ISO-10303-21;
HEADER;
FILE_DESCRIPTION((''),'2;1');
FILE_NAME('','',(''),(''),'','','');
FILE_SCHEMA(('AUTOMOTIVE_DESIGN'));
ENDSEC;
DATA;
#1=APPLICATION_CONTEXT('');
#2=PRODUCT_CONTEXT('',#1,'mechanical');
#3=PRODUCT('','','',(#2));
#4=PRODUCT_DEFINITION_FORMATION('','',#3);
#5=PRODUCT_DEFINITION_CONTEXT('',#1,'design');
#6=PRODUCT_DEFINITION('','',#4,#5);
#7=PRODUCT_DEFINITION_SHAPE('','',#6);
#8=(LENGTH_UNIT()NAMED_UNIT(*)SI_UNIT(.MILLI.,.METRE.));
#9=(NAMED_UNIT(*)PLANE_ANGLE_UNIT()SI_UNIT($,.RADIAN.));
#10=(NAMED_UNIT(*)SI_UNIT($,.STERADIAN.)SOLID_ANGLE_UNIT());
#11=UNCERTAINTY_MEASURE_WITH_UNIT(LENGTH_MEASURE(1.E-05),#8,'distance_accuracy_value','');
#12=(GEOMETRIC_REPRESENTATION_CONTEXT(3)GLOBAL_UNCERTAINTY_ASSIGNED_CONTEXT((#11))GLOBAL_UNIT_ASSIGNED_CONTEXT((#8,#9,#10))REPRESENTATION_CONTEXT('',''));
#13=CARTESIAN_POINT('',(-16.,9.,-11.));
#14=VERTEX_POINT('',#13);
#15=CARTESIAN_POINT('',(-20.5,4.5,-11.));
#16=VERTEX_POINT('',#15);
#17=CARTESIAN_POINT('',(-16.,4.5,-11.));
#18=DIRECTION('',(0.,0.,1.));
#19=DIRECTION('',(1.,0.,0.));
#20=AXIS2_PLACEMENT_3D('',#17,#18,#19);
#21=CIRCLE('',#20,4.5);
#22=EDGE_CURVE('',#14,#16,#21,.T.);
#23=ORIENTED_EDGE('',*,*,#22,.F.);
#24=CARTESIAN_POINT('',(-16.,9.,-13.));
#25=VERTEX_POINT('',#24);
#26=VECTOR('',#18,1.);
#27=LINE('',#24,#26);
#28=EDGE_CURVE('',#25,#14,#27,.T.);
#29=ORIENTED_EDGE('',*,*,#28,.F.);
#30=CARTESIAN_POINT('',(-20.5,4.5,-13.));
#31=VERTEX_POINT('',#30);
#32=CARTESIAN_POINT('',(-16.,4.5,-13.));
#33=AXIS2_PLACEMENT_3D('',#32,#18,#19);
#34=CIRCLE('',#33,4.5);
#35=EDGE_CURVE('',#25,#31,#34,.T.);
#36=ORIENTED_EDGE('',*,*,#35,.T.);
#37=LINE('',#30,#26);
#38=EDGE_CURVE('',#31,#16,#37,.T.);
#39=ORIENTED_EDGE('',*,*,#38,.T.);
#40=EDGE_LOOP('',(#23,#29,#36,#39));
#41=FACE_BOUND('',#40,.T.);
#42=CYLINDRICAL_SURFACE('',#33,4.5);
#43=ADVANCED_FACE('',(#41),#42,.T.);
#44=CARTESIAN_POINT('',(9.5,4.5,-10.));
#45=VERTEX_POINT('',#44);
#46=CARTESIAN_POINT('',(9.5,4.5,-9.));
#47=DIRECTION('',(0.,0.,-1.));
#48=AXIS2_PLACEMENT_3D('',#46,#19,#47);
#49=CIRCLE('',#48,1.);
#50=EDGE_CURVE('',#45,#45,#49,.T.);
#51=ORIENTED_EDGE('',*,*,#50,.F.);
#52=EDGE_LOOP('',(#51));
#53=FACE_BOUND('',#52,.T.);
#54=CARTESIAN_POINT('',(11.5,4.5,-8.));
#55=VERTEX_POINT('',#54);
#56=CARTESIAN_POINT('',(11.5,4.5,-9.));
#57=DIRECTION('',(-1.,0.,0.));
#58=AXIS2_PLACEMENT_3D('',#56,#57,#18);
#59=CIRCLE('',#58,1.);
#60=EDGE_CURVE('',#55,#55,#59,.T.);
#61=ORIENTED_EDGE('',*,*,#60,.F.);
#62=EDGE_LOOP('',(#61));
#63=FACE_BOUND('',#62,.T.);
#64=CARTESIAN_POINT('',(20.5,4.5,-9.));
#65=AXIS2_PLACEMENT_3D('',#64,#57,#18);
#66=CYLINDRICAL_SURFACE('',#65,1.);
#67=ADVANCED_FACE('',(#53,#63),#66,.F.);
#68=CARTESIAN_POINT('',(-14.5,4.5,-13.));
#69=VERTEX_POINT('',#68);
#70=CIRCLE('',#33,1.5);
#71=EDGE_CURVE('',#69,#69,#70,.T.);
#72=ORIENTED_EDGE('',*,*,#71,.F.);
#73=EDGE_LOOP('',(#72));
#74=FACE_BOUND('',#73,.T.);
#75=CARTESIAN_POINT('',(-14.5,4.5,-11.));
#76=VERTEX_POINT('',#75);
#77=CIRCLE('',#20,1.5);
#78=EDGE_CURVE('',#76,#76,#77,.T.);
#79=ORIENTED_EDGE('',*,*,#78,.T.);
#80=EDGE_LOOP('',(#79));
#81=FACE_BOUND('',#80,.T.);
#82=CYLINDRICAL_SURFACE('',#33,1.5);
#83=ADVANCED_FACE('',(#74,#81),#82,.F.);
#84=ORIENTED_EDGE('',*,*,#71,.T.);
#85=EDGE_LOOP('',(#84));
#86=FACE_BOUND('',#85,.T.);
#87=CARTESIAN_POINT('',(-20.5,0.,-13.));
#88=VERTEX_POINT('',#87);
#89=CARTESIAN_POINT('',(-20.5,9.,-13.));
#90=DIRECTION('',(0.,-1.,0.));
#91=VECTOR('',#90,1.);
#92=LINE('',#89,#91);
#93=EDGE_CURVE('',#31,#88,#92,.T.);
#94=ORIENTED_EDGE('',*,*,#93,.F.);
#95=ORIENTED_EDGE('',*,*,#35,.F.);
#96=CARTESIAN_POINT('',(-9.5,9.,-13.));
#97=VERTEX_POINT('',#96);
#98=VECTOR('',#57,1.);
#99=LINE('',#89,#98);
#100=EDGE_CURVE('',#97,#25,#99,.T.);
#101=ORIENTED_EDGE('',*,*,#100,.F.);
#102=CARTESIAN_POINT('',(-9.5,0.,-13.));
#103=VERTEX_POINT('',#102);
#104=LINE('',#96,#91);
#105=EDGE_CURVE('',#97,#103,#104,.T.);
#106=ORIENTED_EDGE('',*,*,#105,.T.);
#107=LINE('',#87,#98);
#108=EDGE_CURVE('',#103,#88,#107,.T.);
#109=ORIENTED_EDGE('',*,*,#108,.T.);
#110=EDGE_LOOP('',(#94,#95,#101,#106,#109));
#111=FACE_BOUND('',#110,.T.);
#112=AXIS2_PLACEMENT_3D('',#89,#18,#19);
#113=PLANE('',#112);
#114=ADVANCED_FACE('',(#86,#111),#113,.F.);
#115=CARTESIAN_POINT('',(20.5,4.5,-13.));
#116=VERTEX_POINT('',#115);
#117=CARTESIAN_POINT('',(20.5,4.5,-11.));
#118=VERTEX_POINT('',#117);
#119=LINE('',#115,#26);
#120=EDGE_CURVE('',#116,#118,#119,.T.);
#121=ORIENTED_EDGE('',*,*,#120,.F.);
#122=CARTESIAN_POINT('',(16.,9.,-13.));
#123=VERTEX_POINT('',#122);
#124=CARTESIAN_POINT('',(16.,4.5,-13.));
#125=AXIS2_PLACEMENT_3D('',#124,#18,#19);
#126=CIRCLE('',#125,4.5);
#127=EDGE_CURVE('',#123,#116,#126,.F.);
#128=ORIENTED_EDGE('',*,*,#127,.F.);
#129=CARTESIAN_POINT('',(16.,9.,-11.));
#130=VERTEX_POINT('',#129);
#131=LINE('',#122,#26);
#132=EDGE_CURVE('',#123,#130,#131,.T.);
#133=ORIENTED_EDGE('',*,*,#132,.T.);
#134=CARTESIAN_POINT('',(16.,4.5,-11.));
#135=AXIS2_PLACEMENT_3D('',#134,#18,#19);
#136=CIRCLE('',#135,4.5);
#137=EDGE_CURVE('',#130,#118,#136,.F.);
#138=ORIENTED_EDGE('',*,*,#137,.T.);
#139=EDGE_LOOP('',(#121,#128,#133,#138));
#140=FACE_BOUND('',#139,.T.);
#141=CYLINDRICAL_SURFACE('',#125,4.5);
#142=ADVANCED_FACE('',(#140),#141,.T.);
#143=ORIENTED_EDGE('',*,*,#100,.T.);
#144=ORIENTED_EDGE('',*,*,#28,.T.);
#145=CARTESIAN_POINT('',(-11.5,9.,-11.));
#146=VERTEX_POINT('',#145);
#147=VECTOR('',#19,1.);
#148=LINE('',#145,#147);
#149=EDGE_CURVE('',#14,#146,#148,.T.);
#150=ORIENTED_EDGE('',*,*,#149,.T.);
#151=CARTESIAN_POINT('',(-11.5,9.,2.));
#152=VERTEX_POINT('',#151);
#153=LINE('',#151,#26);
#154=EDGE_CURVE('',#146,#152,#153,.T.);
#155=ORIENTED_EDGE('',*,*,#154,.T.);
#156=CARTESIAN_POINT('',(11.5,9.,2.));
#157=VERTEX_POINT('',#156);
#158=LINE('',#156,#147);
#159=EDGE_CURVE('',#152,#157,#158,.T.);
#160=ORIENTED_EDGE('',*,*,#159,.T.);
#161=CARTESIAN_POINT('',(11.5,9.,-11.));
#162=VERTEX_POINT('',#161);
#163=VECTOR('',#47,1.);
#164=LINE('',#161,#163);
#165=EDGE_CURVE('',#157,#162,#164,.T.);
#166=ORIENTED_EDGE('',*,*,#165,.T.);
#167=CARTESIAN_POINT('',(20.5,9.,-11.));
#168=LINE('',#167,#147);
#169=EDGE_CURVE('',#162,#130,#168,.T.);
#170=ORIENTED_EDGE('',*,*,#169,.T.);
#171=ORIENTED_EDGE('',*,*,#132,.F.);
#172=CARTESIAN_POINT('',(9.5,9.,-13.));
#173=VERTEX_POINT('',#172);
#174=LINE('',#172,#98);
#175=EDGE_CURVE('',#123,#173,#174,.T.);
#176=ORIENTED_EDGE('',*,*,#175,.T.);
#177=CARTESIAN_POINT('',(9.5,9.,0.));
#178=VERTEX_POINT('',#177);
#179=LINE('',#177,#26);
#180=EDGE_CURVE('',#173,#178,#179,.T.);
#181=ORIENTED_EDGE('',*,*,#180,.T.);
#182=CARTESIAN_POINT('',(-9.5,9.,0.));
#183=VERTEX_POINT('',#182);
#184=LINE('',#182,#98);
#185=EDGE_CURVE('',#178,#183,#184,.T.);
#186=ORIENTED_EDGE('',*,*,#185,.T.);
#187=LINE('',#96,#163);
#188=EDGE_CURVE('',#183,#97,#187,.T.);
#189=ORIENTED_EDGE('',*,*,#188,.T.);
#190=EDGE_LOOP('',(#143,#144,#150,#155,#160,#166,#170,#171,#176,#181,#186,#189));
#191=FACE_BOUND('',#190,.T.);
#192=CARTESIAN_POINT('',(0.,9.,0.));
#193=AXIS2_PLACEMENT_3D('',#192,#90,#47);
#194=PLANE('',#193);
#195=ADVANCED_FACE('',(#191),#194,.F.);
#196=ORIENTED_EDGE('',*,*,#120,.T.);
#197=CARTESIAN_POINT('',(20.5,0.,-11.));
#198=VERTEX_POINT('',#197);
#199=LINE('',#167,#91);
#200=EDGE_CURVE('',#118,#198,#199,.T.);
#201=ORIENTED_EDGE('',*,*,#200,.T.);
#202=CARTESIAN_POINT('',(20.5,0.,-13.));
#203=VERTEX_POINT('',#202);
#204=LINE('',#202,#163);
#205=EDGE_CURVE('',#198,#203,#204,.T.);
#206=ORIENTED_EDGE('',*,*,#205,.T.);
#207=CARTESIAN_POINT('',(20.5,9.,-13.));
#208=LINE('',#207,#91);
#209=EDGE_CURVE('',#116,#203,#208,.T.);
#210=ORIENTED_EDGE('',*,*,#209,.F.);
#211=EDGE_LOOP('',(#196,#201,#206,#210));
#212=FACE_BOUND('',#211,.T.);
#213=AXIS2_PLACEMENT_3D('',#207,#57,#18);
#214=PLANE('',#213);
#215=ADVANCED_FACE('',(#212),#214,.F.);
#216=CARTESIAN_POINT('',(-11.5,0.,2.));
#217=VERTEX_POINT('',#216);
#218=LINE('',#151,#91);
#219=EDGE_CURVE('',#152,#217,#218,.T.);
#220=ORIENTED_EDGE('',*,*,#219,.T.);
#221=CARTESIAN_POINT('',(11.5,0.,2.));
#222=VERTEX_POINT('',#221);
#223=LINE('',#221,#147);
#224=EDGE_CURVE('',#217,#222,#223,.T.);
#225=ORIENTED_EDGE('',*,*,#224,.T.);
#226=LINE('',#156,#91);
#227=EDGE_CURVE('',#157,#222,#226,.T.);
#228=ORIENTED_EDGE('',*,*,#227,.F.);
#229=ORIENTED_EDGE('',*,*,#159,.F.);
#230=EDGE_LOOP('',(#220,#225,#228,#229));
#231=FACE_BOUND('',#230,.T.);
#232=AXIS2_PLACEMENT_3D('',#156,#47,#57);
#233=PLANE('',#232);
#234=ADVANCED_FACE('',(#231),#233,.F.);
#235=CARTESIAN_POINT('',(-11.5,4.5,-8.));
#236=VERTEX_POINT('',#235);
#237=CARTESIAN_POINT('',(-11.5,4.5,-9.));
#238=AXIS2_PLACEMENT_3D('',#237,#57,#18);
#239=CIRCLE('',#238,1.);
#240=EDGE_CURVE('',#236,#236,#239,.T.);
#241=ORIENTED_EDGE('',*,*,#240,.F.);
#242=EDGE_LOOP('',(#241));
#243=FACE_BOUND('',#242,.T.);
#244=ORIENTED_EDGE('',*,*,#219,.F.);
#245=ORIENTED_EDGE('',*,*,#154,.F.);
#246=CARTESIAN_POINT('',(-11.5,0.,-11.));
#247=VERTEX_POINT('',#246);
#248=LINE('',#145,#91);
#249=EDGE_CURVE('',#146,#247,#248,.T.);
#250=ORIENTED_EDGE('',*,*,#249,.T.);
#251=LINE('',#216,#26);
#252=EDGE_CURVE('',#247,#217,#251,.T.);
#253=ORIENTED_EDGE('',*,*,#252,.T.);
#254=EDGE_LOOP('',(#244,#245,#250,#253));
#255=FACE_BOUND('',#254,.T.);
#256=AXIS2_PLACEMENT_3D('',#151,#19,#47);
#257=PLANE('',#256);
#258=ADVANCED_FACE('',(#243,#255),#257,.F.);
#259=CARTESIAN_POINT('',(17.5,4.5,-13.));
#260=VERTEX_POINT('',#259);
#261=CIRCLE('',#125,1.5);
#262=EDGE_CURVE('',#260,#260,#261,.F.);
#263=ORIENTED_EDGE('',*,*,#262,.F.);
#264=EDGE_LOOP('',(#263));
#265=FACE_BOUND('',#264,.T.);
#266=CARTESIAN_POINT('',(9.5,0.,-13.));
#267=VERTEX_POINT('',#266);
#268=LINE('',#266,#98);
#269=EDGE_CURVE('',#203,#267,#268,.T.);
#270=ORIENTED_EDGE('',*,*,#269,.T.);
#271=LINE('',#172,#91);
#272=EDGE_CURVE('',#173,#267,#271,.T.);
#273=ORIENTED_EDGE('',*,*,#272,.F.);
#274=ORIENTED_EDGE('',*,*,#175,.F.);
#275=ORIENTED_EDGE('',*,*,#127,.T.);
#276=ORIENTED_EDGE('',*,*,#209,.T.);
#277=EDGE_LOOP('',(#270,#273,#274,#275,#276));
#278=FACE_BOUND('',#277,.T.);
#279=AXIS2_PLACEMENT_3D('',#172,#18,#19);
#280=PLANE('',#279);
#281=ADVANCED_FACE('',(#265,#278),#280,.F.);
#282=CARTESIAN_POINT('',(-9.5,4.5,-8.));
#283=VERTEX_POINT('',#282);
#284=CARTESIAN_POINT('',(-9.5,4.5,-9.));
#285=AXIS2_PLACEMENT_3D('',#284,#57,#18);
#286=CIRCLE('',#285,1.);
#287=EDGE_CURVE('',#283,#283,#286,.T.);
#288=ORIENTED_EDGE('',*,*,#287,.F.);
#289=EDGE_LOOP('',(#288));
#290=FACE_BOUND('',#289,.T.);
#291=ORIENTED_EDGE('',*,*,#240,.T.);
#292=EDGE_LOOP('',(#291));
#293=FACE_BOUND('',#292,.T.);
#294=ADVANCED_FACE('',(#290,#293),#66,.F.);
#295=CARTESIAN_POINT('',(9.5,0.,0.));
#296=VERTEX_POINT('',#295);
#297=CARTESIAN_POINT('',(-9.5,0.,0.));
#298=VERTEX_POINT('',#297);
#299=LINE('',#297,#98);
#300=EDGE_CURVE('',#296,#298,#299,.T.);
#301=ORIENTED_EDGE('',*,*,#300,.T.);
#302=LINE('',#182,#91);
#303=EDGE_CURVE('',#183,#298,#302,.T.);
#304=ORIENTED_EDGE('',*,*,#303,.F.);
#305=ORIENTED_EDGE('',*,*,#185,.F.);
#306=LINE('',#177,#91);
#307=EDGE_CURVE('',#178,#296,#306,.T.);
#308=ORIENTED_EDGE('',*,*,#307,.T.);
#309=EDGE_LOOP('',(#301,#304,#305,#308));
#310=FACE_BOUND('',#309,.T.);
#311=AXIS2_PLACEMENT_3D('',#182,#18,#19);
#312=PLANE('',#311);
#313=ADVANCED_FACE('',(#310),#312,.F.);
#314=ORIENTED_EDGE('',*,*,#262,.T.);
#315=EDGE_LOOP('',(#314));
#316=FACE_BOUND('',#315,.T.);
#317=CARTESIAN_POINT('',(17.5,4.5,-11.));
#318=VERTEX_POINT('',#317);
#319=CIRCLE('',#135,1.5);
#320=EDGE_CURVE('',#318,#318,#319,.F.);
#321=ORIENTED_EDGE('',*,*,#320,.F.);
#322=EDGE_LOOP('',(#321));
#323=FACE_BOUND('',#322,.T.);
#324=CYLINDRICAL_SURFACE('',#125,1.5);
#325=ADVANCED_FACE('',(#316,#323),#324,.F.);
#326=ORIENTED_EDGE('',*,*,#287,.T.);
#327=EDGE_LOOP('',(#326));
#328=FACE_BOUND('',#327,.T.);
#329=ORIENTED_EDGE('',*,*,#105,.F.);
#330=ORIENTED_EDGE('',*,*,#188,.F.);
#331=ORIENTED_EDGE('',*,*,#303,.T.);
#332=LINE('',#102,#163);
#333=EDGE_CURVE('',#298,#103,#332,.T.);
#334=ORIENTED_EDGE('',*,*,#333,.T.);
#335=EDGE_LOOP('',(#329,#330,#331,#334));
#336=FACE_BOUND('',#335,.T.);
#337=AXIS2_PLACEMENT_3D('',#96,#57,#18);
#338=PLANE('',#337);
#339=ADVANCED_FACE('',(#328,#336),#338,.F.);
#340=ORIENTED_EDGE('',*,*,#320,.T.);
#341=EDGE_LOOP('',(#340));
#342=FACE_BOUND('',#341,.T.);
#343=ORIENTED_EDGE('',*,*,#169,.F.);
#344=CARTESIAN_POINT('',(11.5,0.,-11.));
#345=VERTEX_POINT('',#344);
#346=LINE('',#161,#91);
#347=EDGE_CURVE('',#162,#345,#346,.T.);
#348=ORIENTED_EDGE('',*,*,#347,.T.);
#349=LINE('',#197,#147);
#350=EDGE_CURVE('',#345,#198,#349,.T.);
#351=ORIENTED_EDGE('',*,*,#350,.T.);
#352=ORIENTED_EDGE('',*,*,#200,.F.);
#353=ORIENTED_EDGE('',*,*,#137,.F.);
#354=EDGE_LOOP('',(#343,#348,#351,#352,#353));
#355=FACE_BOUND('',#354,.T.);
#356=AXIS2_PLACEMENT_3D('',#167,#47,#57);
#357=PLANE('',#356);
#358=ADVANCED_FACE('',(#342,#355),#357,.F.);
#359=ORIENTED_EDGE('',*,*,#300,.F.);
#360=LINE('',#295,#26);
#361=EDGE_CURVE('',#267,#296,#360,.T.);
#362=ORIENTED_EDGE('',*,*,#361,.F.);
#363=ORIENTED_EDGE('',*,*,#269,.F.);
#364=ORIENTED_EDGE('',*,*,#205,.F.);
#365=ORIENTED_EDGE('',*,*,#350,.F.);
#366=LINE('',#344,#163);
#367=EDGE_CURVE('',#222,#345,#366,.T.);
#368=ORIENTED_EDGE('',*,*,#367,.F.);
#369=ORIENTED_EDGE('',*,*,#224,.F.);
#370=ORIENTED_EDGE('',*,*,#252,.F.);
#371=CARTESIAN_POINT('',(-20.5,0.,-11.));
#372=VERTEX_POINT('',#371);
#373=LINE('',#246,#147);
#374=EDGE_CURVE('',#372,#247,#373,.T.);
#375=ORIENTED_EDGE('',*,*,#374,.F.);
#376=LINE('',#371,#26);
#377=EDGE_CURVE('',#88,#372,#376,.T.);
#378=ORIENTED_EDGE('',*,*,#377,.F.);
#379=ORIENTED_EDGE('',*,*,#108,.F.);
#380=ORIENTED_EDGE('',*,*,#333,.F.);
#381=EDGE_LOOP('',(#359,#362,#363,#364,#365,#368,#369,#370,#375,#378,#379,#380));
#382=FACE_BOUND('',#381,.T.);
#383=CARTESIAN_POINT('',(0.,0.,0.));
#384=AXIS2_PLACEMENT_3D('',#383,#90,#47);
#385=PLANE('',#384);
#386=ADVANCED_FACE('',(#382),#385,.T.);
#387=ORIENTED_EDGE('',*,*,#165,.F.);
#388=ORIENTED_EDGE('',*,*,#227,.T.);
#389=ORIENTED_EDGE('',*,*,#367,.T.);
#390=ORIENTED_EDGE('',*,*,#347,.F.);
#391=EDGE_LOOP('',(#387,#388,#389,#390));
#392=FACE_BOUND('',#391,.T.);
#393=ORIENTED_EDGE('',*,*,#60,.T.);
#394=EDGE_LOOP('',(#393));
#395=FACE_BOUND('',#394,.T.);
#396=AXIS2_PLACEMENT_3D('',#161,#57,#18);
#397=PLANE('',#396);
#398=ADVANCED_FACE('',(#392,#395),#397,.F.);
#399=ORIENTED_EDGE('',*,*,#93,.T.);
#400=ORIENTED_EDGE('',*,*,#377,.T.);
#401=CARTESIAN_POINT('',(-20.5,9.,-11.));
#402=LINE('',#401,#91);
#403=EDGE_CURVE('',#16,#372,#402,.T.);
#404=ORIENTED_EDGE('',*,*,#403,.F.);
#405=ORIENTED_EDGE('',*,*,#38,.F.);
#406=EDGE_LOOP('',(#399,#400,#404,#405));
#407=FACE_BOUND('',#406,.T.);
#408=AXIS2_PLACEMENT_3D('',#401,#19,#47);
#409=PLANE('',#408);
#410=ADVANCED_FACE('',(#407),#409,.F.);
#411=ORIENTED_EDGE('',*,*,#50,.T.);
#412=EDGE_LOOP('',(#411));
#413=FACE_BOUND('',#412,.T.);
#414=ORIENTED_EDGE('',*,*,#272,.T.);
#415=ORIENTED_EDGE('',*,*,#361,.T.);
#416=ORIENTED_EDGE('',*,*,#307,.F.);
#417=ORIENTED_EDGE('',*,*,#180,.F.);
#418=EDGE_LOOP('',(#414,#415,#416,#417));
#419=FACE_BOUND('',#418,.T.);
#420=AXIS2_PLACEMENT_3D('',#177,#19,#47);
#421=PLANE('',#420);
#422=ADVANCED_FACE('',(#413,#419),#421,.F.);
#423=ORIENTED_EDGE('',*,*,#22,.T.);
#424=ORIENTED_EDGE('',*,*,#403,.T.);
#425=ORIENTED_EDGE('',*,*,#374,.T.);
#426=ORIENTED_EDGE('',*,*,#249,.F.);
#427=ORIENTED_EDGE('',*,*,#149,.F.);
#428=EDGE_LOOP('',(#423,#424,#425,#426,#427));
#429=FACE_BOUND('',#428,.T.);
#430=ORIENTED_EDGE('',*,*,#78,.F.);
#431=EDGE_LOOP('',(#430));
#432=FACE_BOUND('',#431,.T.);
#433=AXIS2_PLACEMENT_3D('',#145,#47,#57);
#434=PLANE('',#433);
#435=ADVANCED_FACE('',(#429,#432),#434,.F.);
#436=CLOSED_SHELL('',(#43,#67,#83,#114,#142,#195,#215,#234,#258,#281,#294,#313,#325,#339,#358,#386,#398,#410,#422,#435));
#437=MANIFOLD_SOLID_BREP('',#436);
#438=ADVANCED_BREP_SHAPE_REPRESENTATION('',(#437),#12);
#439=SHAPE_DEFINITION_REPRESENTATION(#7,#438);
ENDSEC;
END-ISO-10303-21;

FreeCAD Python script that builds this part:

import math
import FreeCAD as App
import Part
import Sketcher
from FreeCAD import Vector
Q = App.Units.Quantity


def add_polygon(sketch, points):
    """Adds a closed chain of lines whose ends are joined by coincident constraints."""
    first, n = sketch.GeometryCount, len(points)
    for a, b in zip(points, points[1:] + points[:1]):
        sketch.addGeometry(Part.LineSegment(App.Vector(*a, 0), App.Vector(*b, 0)), False)
    for i in range(n):
        sketch.addConstraint(Sketcher.Constraint("Coincident", first + i, 2, first + (i + 1) % n, 1))

doc = App.newDocument("Part")
body = doc.addObject("PartDesign::Body", "Body")

# Sketch on XZ plane
sketch1 = body.newObject("Sketcher::SketchObject", "Sketch")
sketch1.AttachmentSupport = (doc.getObject("XZ_Plane"), [""])
sketch1.MapMode = "FlatFace"
add_polygon(sketch1, [(-9.5, -13), (-20.5, -13), (-20.5, -11), (-11.5, -11), (-11.5, 2), (11.5, 2), (11.5, -11), (20.5, -11), (20.5, -13), (9.5, -13), (9.5, 0), (-9.5, 0)])  # lines 0-11
sketch1.addConstraint(Sketcher.Constraint("Horizontal", 0))
sketch1.addConstraint(Sketcher.Constraint("Vertical", 1))
sketch1.addConstraint(Sketcher.Constraint("Horizontal", 2))
sketch1.addConstraint(Sketcher.Constraint("Vertical", 3))
sketch1.addConstraint(Sketcher.Constraint("Horizontal", 4))
sketch1.addConstraint(Sketcher.Constraint("Vertical", 5))
sketch1.addConstraint(Sketcher.Constraint("Horizontal", 6))
sketch1.addConstraint(Sketcher.Constraint("Vertical", 7))
sketch1.addConstraint(Sketcher.Constraint("Horizontal", 8))
sketch1.addConstraint(Sketcher.Constraint("Vertical", 9))
sketch1.addConstraint(Sketcher.Constraint("Horizontal", 10))
sketch1.addConstraint(Sketcher.Constraint("Vertical", 11))
sketch1.addConstraint(Sketcher.Constraint("Symmetric", 9, 2, 10, 2, -1, 1))
sketch1.addConstraint(Sketcher.Constraint("Symmetric", 2, 2, 5, 2, -2))
sketch1.addConstraint(Sketcher.Constraint("Symmetric", 0, 2, 7, 2, -2))
sketch1.addConstraint(Sketcher.Constraint("Equal", 5, 9))
sketch1.addConstraint(Sketcher.Constraint("DistanceX", 0, 2, 0, 1, Q("11 mm")))
sketch1.addConstraint(Sketcher.Constraint("DistanceX", 2, 1, 2, 2, Q("9 mm")))
sketch1.addConstraint(Sketcher.Constraint("DistanceX", 4, 1, 4, 2, Q("23 mm")))
sketch1.addConstraint(Sketcher.Constraint("DistanceY", 1, 1, 1, 2, Q("2 mm")))
sketch1.addConstraint(Sketcher.Constraint("DistanceY", 3, 1, 3, 2, Q("13 mm")))
pad1 = body.newObject("PartDesign::Pad", "Pad")
pad1.Profile = sketch1
pad1.Length = 9
pad1.Reversed = True

# Sketch on YZ plane
sketch2 = body.newObject("Sketcher::SketchObject", "Sketch001")
sketch2.AttachmentSupport = (doc.getObject("YZ_Plane"), [""])
sketch2.MapMode = "FlatFace"
sketch2.AttachmentOffset = App.Placement(Vector(0, 0, -11.5), App.Rotation())
sketch2.addGeometry(Part.Circle(Vector(4.5, -9, 0), Vector(0, 0, 1), 1), False)
sketch2.addConstraint(Sketcher.Constraint("Diameter", 0, Q("2 mm")))
sketch2.addConstraint(Sketcher.Constraint("DistanceY", 0, 3, -1, 1, Q("9 mm")))
sketch2.addConstraint(Sketcher.Constraint("DistanceX", -1, 1, 0, 3, Q("4.5 mm")))
pocket1 = body.newObject("PartDesign::Pocket", "Pocket")
pocket1.Profile = sketch2
pocket1.Type = "ThroughAll"
pocket1.Reversed = True

# Sketch on XY plane
sketch3 = body.newObject("Sketcher::SketchObject", "Sketch002")
sketch3.AttachmentSupport = (doc.getObject("XY_Plane"), [""])
sketch3.MapMode = "FlatFace"
sketch3.AttachmentOffset = App.Placement(Vector(0, 0, -11), App.Rotation())
sketch3.addGeometry(Part.Circle(Vector(-16, 4.5, 0), Vector(0, 0, 1), 1.5), False)
sketch3.addGeometry(Part.LineSegment(Vector(-20.5, 9, 0), Vector(-20.5, 4.5, 0)), False)
sketch3.addGeometry(Part.ArcOfCircle(Part.Circle(Vector(-16, 4.5, 0), Vector(0, 0, 1), 4.5), math.radians(90), math.radians(180)), False)
sketch3.addGeometry(Part.LineSegment(Vector(-16, 9, 0), Vector(-20.5, 9, 0)), False)
sketch3.addGeometry(Part.LineSegment(Vector(20.5, 4.5, 0), Vector(20.5, 9, 0)), False)
sketch3.addGeometry(Part.LineSegment(Vector(20.5, 9, 0), Vector(16, 9, 0)), False)
sketch3.addGeometry(Part.ArcOfCircle(Part.Circle(Vector(16, 4.5, 0), Vector(0, 0, 1), 4.5), math.radians(0), math.radians(90)), False)
sketch3.addGeometry(Part.Circle(Vector(16, 4.5, 0), Vector(0, 0, 1), 1.5), False)
sketch3.addConstraint(Sketcher.Constraint("Tangent", 1, 2, 2, 2))
sketch3.addConstraint(Sketcher.Constraint("Tangent", 2, 1, 3, 1))
sketch3.addConstraint(Sketcher.Constraint("Coincident", 3, 2, 1, 1))
sketch3.addConstraint(Sketcher.Constraint("Coincident", 4, 2, 5, 1))
sketch3.addConstraint(Sketcher.Constraint("Tangent", 5, 2, 6, 2))
sketch3.addConstraint(Sketcher.Constraint("Tangent", 6, 1, 4, 1))
sketch3.addConstraint(Sketcher.Constraint("Vertical", 1))
sketch3.addConstraint(Sketcher.Constraint("Horizontal", 3))
sketch3.addConstraint(Sketcher.Constraint("Vertical", 4))
sketch3.addConstraint(Sketcher.Constraint("Horizontal", 5))
sketch3.addConstraint(Sketcher.Constraint("Coincident", 2, 3, 0, 3))
sketch3.addConstraint(Sketcher.Constraint("Coincident", 7, 3, 6, 3))
sketch3.addConstraint(Sketcher.Constraint("Equal", 2, 6))
sketch3.addConstraint(Sketcher.Constraint("Equal", 0, 7))
sketch3.addConstraint(Sketcher.Constraint("Symmetric", 0, 3, 6, 3, -2))
sketch3.addConstraint(Sketcher.Constraint("Diameter", 0, Q("3 mm")))
sketch3.addConstraint(Sketcher.Constraint("Radius", 2, Q("4.5 mm")))
sketch3.addConstraint(Sketcher.Constraint("DistanceX", 0, 3, -1, 1, Q("16 mm")))
sketch3.addConstraint(Sketcher.Constraint("DistanceY", -1, 1, 2, 1, Q("9 mm")))
pocket2 = body.newObject("PartDesign::Pocket", "Pocket001")
pocket2.Profile = sketch3
pocket2.Type = "ThroughAll"

doc.recompute()
